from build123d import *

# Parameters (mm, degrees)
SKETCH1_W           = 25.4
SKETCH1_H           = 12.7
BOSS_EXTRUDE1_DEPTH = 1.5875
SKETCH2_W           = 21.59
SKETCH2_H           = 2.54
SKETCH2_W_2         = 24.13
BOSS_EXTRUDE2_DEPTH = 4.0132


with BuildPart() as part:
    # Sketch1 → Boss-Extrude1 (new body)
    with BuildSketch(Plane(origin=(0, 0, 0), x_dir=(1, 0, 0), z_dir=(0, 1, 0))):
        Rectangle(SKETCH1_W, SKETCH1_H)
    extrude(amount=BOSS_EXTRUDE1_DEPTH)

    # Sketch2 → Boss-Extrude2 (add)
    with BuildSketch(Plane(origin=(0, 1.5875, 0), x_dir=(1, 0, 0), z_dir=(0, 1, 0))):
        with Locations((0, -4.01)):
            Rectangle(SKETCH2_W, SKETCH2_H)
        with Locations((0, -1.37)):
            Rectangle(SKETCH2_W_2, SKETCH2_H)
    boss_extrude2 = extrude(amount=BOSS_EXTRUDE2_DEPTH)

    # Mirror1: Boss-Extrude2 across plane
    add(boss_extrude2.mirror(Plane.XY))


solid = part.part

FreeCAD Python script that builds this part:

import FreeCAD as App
import Part
import Sketcher
Q = App.Units.Quantity

doc = App.newDocument("Part")
body = doc.addObject("PartDesign::Body", "Body")

# Sketch on XZ plane
sketch1 = doc.addObject("Sketcher::SketchObject", "Sketch")
body.addObject(sketch1)
sketch1.AttachmentSupport = (doc.XZ_Plane, [""])
sketch1.MapMode = "FlatFace"
sketch1.addGeometry(Part.LineSegment(App.Vector(-12.7, -6.35, 0), App.Vector(-12.7, 6.35, 0)), False)
sketch1.addGeometry(Part.LineSegment(App.Vector(-12.7, 6.35, 0), App.Vector(12.7, 6.35, 0)), False)
sketch1.addGeometry(Part.LineSegment(App.Vector(12.7, 6.35, 0), App.Vector(12.7, -6.35, 0)), False)
sketch1.addGeometry(Part.LineSegment(App.Vector(12.7, -6.35, 0), App.Vector(-12.7, -6.35, 0)), False)
sketch1.addConstraint(Sketcher.Constraint("Coincident", 0, 2, 1, 1))
sketch1.addConstraint(Sketcher.Constraint("Coincident", 1, 2, 2, 1))
sketch1.addConstraint(Sketcher.Constraint("Coincident", 2, 2, 3, 1))
sketch1.addConstraint(Sketcher.Constraint("Coincident", 3, 2, 0, 1))
sketch1.addConstraint(Sketcher.Constraint("Vertical", 0))
sketch1.addConstraint(Sketcher.Constraint("Horizontal", 1))
sketch1.addConstraint(Sketcher.Constraint("Vertical", 2))
sketch1.addConstraint(Sketcher.Constraint("Horizontal", 3))
sketch1.addConstraint(Sketcher.Constraint("Symmetric", 0, 2, 2, 2, -1, 1))
sketch1.addConstraint(Sketcher.Constraint("DistanceX", 1, 1, 1, 2, Q("1 in")))
sketch1.addConstraint(Sketcher.Constraint("DistanceY", 0, 1, 0, 2, Q("0.5 in")))
pad1 = doc.addObject("PartDesign::Pad", "Pad")
body.addObject(pad1)
pad1.Profile = sketch1
pad1.Length = Q("0.0625 in")
pad1.Reversed = True

# Sketch on XZ plane
sketch2 = doc.addObject("Sketcher::SketchObject", "Sketch001")
body.addObject(sketch2)
sketch2.AttachmentSupport = (doc.XZ_Plane, [""])
sketch2.MapMode = "FlatFace"
sketch2.AttachmentOffset = App.Placement(App.Vector(0, 0, -0.0625 * 25.4), App.Rotation())
sketch2.addGeometry(Part.LineSegment(App.Vector(-10.795, 2.74, 0), App.Vector(-10.795, 5.28, 0)), False)
sketch2.addGeometry(Part.LineSegment(App.Vector(-10.795, 5.28, 0), App.Vector(10.795, 5.28, 0)), False)
sketch2.addGeometry(Part.LineSegment(App.Vector(10.795, 5.28, 0), App.Vector(10.795, 2.74, 0)), False)
sketch2.addGeometry(Part.LineSegment(App.Vector(10.795, 2.74, 0), App.Vector(-10.795, 2.74, 0)), False)
sketch2.addGeometry(Part.LineSegment(App.Vector(-12.065, 0.1, 0), App.Vector(-12.065, 2.64, 0)), False)
sketch2.addGeometry(Part.LineSegment(App.Vector(-12.065, 2.64, 0), App.Vector(12.065, 2.64, 0)), False)
sketch2.addGeometry(Part.LineSegment(App.Vector(12.065, 2.64, 0), App.Vector(12.065, 0.1, 0)), False)
sketch2.addGeometry(Part.LineSegment(App.Vector(12.065, 0.1, 0), App.Vector(-12.065, 0.1, 0)), False)
sketch2.addConstraint(Sketcher.Constraint("Coincident", 0, 2, 1, 1))
sketch2.addConstraint(Sketcher.Constraint("Coincident", 1, 2, 2, 1))
sketch2.addConstraint(Sketcher.Constraint("Coincident", 2, 2, 3, 1))
sketch2.addConstraint(Sketcher.Constraint("Coincident", 3, 2, 0, 1))
sketch2.addConstraint(Sketcher.Constraint("Coincident", 4, 2, 5, 1))
sketch2.addConstraint(Sketcher.Constraint("Coincident", 5, 2, 6, 1))
sketch2.addConstraint(Sketcher.Constraint("Coincident", 6, 2, 7, 1))
sketch2.addConstraint(Sketcher.Constraint("Coincident", 7, 2, 4, 1))
sketch2.addConstraint(Sketcher.Constraint("Vertical", 0))
sketch2.addConstraint(Sketcher.Constraint("Horizontal", 1))
sketch2.addConstraint(Sketcher.Constraint("Vertical", 2))
sketch2.addConstraint(Sketcher.Constraint("Horizontal", 3))
sketch2.addConstraint(Sketcher.Constraint("Vertical", 4))
sketch2.addConstraint(Sketcher.Constraint("Horizontal", 5))
sketch2.addConstraint(Sketcher.Constraint("Vertical", 6))
sketch2.addConstraint(Sketcher.Constraint("Horizontal", 7))
sketch2.addConstraint(Sketcher.Constraint("Equal", 2, 4))
sketch2.addConstraint(Sketcher.Constraint("DistanceY", 0, 1, 0, 2, Q("0.1 in")))
sketch2.addConstraint(Sketcher.Constraint("DistanceX", 1, 1, 1, 2, Q("0.85 in")))
sketch2.addConstraint(Sketcher.Constraint("DistanceX", 5, 1, 5, 2, Q("0.95 in")))
sketch2.addConstraint(Sketcher.Constraint("DistanceX", 4, 2, 2, 2, Q("0.9 in")))
sketch2.addConstraint(Sketcher.Constraint("DistanceX", 0, 2, -1, 1, Q("0.425 in")))
sketch2.addConstraint(Sketcher.Constraint("DistanceY", -1, 1, 0, 2, Q("5.28 mm")))
sketch2.addConstraint(Sketcher.Constraint("DistanceY", -1, 1, 4, 2, Q("2.64 mm")))
pad2 = doc.addObject("PartDesign::Pad", "Pad001")
body.addObject(pad2)
pad2.Profile = sketch2
pad2.Length = Q("0.158 in")
pad2.Reversed = True
doc.recompute()

mirrored = doc.addObject("PartDesign::Mirrored", "Mirrored")
body.addObject(mirrored)
mirrored.Originals = [pad2]
mirrored.MirrorPlane = (doc.XY_Plane, [""])
body.Tip = mirrored

doc.recompute()
